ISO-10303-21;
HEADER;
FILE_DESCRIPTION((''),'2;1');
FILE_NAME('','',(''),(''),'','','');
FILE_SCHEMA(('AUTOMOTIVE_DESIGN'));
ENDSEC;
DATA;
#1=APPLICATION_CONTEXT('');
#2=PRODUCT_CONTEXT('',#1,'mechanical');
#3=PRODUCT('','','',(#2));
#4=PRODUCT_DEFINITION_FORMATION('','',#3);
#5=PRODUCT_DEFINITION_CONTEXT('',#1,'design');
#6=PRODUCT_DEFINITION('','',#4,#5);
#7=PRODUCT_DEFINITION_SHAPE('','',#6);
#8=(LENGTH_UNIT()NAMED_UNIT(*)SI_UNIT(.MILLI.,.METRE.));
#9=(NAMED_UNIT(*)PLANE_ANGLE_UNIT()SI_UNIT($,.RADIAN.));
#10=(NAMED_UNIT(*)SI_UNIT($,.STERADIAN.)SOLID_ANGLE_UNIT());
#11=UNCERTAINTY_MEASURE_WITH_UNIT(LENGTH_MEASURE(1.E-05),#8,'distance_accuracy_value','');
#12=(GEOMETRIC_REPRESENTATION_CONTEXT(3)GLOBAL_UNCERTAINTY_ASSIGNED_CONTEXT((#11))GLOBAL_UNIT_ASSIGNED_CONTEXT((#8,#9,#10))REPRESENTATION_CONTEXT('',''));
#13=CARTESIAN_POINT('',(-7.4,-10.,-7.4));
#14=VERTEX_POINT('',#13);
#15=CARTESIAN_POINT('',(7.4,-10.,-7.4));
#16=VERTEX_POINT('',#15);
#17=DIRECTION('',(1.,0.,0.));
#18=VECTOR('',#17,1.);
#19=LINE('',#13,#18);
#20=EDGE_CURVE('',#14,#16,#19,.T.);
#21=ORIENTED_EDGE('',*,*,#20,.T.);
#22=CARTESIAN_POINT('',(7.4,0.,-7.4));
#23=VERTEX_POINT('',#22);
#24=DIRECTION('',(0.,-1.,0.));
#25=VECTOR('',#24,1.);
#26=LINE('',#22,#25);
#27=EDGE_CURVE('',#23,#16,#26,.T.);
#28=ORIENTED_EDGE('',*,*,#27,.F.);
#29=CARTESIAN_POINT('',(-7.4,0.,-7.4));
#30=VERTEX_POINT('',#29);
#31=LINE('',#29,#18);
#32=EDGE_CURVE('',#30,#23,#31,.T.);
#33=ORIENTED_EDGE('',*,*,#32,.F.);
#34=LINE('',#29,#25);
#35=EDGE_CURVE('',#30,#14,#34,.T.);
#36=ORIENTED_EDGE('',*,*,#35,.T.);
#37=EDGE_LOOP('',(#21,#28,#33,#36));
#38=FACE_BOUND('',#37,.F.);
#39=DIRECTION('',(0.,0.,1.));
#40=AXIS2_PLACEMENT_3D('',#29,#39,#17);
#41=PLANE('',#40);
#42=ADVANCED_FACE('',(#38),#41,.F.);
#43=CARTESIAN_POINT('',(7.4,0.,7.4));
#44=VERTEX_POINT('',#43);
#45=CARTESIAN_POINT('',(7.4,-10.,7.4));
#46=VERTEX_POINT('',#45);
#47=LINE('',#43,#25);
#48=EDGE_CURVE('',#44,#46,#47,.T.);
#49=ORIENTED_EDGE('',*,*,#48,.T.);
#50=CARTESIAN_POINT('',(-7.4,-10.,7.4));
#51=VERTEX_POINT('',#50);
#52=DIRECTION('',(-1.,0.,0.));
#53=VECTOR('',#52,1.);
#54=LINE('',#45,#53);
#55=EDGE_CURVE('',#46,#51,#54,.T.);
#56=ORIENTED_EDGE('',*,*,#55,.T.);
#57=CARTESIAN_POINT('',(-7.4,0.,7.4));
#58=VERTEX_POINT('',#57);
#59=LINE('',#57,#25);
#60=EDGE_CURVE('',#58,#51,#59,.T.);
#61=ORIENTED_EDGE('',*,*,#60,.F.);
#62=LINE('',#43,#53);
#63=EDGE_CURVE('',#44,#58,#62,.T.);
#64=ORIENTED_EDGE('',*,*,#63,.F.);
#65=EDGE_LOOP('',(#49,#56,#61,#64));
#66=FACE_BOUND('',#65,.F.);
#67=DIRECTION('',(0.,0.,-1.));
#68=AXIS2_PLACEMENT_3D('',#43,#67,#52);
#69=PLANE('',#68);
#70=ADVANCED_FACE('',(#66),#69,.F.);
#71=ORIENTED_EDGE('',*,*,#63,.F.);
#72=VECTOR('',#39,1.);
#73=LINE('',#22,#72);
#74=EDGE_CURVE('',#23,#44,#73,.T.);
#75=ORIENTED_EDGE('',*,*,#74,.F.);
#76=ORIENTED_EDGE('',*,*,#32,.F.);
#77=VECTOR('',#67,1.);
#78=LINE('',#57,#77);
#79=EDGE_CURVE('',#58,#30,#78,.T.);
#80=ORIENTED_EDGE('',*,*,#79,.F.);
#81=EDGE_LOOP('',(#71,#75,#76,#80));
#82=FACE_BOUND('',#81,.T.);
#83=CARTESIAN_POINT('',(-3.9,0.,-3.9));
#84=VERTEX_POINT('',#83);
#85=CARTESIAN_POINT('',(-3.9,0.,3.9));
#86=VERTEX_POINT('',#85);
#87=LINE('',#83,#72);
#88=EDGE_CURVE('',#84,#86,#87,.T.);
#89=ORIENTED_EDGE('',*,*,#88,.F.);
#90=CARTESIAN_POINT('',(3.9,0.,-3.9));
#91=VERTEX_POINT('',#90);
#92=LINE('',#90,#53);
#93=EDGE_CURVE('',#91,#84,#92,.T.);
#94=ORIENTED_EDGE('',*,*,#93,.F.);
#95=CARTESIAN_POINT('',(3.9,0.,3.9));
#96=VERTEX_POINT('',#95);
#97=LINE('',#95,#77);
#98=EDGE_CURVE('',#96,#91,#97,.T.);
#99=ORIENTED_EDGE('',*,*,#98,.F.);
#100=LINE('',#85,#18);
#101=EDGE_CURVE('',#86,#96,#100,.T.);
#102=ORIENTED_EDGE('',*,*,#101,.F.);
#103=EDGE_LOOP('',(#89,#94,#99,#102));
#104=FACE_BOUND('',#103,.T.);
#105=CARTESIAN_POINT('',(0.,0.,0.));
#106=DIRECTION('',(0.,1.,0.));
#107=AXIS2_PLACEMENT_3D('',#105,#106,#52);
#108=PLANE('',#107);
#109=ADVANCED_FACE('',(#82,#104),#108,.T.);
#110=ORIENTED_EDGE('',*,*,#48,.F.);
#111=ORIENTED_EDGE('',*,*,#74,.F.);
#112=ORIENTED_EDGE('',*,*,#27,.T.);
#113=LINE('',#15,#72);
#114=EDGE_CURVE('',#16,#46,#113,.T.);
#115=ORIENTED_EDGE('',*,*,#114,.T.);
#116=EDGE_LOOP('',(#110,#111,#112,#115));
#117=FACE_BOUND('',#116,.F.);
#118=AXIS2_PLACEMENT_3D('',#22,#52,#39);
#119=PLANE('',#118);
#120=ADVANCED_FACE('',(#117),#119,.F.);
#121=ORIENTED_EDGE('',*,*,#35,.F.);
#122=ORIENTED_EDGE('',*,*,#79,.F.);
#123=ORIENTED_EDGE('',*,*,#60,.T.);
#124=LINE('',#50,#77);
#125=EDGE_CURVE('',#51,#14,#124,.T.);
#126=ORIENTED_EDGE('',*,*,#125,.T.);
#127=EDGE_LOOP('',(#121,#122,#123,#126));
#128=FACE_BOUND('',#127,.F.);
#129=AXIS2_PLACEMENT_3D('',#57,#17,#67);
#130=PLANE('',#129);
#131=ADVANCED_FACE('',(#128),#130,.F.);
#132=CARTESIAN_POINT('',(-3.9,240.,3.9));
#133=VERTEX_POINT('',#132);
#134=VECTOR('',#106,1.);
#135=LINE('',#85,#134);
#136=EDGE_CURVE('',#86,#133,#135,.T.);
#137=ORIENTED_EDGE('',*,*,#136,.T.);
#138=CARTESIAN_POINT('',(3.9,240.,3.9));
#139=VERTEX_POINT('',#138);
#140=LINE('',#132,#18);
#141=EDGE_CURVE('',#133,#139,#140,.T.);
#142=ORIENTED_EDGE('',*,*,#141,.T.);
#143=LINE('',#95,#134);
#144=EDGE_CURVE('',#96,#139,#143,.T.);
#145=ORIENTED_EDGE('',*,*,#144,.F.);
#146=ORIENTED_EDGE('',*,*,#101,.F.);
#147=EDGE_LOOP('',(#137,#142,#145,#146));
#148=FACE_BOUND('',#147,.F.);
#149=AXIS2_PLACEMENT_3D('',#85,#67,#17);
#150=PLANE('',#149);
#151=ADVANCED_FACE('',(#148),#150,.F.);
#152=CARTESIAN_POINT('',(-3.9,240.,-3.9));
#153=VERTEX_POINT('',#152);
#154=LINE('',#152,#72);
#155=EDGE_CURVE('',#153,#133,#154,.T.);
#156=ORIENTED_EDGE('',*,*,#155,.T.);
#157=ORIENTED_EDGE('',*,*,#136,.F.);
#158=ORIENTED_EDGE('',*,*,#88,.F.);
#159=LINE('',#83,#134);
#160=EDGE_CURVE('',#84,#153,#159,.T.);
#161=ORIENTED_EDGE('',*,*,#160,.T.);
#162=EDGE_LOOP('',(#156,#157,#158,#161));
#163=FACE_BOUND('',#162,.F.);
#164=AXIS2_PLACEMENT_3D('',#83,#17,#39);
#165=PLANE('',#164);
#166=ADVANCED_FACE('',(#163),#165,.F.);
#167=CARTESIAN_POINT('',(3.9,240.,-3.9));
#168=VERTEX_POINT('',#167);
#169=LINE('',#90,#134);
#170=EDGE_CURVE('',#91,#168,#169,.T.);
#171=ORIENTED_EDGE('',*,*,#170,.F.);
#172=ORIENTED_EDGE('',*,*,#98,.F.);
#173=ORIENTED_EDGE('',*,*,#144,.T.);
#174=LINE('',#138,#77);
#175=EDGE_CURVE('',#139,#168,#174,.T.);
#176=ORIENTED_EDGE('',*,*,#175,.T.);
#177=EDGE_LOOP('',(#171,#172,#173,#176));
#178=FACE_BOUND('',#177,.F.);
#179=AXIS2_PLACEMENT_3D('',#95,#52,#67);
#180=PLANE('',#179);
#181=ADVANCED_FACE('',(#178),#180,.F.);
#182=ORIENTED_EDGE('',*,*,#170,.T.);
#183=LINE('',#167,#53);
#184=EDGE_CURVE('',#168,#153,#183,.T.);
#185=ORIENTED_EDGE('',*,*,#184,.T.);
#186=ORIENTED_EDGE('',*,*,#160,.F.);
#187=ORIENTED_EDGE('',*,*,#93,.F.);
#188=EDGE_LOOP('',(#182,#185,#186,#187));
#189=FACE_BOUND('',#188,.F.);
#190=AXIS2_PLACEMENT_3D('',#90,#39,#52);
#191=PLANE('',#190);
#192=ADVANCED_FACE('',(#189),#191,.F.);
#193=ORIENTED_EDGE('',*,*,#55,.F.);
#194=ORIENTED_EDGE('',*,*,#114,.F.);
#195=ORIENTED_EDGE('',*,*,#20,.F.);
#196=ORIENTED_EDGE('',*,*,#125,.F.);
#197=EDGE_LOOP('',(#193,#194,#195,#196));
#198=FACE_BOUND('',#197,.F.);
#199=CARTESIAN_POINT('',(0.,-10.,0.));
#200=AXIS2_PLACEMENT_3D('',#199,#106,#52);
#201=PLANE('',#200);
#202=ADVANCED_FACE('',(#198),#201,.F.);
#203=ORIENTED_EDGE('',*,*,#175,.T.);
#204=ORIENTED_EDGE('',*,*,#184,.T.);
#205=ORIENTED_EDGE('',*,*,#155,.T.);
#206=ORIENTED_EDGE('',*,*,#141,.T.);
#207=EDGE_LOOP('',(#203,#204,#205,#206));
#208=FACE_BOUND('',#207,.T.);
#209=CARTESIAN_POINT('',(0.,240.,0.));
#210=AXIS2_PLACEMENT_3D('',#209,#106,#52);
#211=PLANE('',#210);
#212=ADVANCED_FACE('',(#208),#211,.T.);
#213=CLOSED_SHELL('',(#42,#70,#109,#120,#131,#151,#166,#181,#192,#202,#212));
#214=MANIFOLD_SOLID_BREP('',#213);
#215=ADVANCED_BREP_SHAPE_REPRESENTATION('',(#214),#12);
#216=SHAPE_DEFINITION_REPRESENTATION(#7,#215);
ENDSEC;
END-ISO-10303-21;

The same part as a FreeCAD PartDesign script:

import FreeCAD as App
import Part
import Sketcher

V = App.Vector
Q = App.Units.Quantity

doc = App.newDocument("Part")
params = doc.addObject("Spreadsheet::Sheet", "Params")
for row, (alias, value) in enumerate([
    ("sketch1_width", "14.8 mm"),
    ("pad1_length", "10 mm"),
    ("sketch2_width", "7.8 mm"),
    ("pad2_length", "240 mm"),
], start=1):
    params.set(f"A{row}", alias)
    params.set(f"B{row}", "=" + value)
    params.setAlias(f"B{row}", alias)

body = doc.addObject("PartDesign::Body", "Body")

sketch1 = body.newObject("Sketcher::SketchObject", "Sketch")
sketch1.AttachmentSupport = (doc.getObject("XZ_Plane"), [""])
sketch1.MapMode = "FlatFace"
sketch1.addGeometry(Part.LineSegment(V(-7, 7, 0), V(7, 7, 0)), False)
sketch1.addGeometry(Part.LineSegment(V(7, 7, 0), V(7, -7, 0)), False)
sketch1.addGeometry(Part.LineSegment(V(7, -7, 0), V(-7, -7, 0)), False)
sketch1.addGeometry(Part.LineSegment(V(-7, -7, 0), V(-7, 7, 0)), False)
sketch1.addConstraint(Sketcher.Constraint("Coincident", 0, 2, 1, 1))
sketch1.addConstraint(Sketcher.Constraint("Coincident", 1, 2, 2, 1))
sketch1.addConstraint(Sketcher.Constraint("Coincident", 2, 2, 3, 1))
sketch1.addConstraint(Sketcher.Constraint("Coincident", 3, 2, 0, 1))
sketch1.addConstraint(Sketcher.Constraint("Horizontal", 0))
sketch1.addConstraint(Sketcher.Constraint("Vertical", 1))
sketch1.addConstraint(Sketcher.Constraint("Horizontal", 2))
sketch1.addConstraint(Sketcher.Constraint("Vertical", 3))
sketch1.addConstraint(Sketcher.Constraint("Symmetric", 0, 2, 2, 2, -1, 1))
sketch1.addConstraint(Sketcher.Constraint("Equal", 2, 1))
sketch1.addConstraint(Sketcher.Constraint("DistanceX", 0, 1, 0, 2, Q("14.8 mm")))
sketch1.setExpression("Constraints[10]", "Params.sketch1_width")
pad1 = body.newObject("PartDesign::Pad", "Pad")
pad1.Profile = sketch1
pad1.setExpression("Length", "Params.pad1_length")

sketch2 = body.newObject("Sketcher::SketchObject", "Sketch001")
sketch2.AttachmentSupport = (doc.getObject("XZ_Plane"), [""])
sketch2.MapMode = "FlatFace"
sketch2.addGeometry(Part.LineSegment(V(-4, -4, 0), V(-4, 4, 0)), False)
sketch2.addGeometry(Part.LineSegment(V(-4, 4, 0), V(4, 4, 0)), False)
sketch2.addGeometry(Part.LineSegment(V(4, 4, 0), V(4, -4, 0)), False)
sketch2.addGeometry(Part.LineSegment(V(4, -4, 0), V(-4, -4, 0)), False)
sketch2.addConstraint(Sketcher.Constraint("Coincident", 0, 2, 1, 1))
sketch2.addConstraint(Sketcher.Constraint("Coincident", 1, 2, 2, 1))
sketch2.addConstraint(Sketcher.Constraint("Coincident", 2, 2, 3, 1))
sketch2.addConstraint(Sketcher.Constraint("Coincident", 3, 2, 0, 1))
sketch2.addConstraint(Sketcher.Constraint("Vertical", 0))
sketch2.addConstraint(Sketcher.Constraint("Horizontal", 1))
sketch2.addConstraint(Sketcher.Constraint("Vertical", 2))
sketch2.addConstraint(Sketcher.Constraint("Horizontal", 3))
sketch2.addConstraint(Sketcher.Constraint("Symmetric", 0, 2, 2, 2, -1, 1))
sketch2.addConstraint(Sketcher.Constraint("Equal", 3, 0))
sketch2.addConstraint(Sketcher.Constraint("DistanceX", 1, 1, 1, 2, Q("7.8 mm")))
sketch2.setExpression("Constraints[10]", "Params.sketch2_width")
pad2 = body.newObject("PartDesign::Pad", "Pad001")
pad2.Profile = sketch2
pad2.setExpression("Length", "Params.pad2_length")
pad2.Reversed = True

doc.recompute()
